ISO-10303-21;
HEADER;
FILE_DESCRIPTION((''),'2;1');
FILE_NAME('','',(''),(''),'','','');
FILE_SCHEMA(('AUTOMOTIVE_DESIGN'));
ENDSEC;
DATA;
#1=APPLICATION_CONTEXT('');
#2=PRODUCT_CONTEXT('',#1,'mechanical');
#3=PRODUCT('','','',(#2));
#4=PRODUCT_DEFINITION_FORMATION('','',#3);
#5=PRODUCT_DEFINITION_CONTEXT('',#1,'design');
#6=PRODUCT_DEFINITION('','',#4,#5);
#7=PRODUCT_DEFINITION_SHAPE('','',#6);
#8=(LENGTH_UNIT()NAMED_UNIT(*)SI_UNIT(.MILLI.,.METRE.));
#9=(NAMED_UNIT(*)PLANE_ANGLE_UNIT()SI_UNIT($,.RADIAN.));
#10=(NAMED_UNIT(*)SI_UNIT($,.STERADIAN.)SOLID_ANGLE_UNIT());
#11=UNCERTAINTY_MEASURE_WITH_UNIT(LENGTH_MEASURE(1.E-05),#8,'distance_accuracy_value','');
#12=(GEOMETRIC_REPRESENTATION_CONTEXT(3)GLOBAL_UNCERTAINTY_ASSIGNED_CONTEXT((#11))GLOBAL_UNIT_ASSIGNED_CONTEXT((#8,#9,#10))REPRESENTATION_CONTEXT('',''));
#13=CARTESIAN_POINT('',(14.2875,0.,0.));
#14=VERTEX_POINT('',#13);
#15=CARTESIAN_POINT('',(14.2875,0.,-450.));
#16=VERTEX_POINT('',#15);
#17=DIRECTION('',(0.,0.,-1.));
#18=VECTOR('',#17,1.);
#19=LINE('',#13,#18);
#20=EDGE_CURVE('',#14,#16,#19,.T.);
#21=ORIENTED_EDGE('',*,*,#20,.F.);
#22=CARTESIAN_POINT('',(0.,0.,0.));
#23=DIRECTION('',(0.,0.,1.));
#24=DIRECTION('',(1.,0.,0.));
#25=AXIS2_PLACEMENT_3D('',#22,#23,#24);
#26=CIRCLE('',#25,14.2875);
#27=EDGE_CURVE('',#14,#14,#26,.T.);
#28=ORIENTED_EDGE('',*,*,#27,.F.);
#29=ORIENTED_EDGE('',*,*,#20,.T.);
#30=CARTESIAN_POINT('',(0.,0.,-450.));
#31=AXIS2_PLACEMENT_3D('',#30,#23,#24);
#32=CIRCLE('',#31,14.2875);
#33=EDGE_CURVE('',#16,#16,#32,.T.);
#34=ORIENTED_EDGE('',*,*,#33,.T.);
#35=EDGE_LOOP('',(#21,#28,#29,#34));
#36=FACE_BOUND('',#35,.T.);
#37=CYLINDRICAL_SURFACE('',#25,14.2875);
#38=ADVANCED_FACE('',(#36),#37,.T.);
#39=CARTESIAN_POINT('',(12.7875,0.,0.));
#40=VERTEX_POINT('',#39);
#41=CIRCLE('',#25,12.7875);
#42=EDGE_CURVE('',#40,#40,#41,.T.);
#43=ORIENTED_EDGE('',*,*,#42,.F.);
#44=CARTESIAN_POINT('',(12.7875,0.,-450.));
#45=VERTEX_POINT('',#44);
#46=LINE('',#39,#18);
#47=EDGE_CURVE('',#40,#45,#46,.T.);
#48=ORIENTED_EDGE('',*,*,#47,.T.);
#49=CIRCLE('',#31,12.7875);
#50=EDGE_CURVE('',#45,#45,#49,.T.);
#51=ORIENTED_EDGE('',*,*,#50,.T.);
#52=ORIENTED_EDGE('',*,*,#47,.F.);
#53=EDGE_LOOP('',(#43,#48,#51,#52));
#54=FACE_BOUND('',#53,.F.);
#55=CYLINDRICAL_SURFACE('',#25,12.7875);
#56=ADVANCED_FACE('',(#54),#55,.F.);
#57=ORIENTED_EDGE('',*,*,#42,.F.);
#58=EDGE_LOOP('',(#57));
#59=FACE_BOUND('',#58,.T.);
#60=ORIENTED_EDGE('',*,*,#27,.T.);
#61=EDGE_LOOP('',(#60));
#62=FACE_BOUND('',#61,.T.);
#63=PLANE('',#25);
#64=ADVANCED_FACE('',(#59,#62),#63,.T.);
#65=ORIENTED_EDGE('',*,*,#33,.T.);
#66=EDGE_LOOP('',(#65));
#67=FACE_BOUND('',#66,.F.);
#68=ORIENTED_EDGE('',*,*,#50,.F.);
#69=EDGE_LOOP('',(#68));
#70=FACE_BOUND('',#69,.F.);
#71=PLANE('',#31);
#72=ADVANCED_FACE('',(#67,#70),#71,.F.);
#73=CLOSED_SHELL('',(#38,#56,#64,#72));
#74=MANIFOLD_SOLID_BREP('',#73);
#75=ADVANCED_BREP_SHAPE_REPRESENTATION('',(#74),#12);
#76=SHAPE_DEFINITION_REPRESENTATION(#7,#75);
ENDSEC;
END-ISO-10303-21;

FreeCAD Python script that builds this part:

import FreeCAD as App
import Part
import Sketcher
from FreeCAD import Vector
Q = App.Units.Quantity

doc = App.newDocument("Part")
body = doc.addObject("PartDesign::Body", "Body")

# Sketch on XY plane
sketch1 = doc.addObject("Sketcher::SketchObject", "Sketch")
body.addObject(sketch1)
sketch1.AttachmentSupport = (doc.XY_Plane, [""])
sketch1.MapMode = "FlatFace"
sketch1.addGeometry(Part.Circle(Vector(0, 0, 0), Vector(0, 0, 1), 14.2875), False)
sketch1.addGeometry(Part.Circle(Vector(0, 0, 0), Vector(0, 0, 1), 12.7875), False)
sketch1.addConstraint(Sketcher.Constraint("Coincident", 0, 3, -1, 1))
sketch1.addConstraint(Sketcher.Constraint("Coincident", 1, 3, -1, 1))
sketch1.addConstraint(Sketcher.Constraint("Diameter", 0, Q("28.575 mm")))
sketch1.addConstraint(Sketcher.Constraint("Diameter", 1, Q("25.575 mm")))
pad1 = doc.addObject("PartDesign::Pad", "Pad")
body.addObject(pad1)
pad1.Profile = sketch1
pad1.Length = 450
pad1.Reversed = True

doc.recompute()
